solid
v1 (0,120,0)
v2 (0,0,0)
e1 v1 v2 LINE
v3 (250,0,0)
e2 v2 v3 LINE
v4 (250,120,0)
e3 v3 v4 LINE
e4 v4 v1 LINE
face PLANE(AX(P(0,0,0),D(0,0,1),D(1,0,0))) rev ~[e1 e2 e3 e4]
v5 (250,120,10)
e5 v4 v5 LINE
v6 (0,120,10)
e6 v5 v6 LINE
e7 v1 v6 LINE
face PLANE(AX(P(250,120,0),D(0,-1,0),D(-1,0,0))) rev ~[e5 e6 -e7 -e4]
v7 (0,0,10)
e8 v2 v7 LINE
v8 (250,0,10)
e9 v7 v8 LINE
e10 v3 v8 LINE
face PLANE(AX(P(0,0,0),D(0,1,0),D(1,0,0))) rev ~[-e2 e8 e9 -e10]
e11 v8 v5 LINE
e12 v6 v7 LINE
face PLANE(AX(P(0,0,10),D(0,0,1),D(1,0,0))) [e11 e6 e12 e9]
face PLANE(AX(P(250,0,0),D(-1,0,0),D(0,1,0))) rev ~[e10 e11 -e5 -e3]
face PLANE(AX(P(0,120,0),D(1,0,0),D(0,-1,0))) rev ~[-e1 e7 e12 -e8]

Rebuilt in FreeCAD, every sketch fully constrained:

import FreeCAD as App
import Part
import Sketcher
Q = App.Units.Quantity


def add_polygon(sketch, points):
    """Adds a closed chain of lines whose ends are joined by coincident constraints."""
    first, n = sketch.GeometryCount, len(points)
    for a, b in zip(points, points[1:] + points[:1]):
        sketch.addGeometry(Part.LineSegment(App.Vector(*a, 0), App.Vector(*b, 0)), False)
    for i in range(n):
        sketch.addConstraint(Sketcher.Constraint("Coincident", first + i, 2, first + (i + 1) % n, 1))

doc = App.newDocument("Part")
params = doc.addObject("Spreadsheet::Sheet", "Params")
for row, (alias, value) in enumerate([
    ("sketch1_width", "250 mm"),
    ("sketch1_height", "120 mm"),
    ("pad1_length", "10 mm"),
], start=1):
    params.set(f"A{row}", alias)
    params.set(f"B{row}", "=" + value)
    params.setAlias(f"B{row}", alias)

body = doc.addObject("PartDesign::Body", "Body")

# Sketch on XY plane
sketch1 = doc.addObject("Sketcher::SketchObject", "Sketch")
body.addObject(sketch1)
sketch1.AttachmentSupport = (doc.XY_Plane, [""])
sketch1.MapMode = "FlatFace"
add_polygon(sketch1, [(0, 120), (0, 0), (250, 0), (250, 120)])  # lines 0-3
sketch1.addConstraint(Sketcher.Constraint("Vertical", 0))
sketch1.addConstraint(Sketcher.Constraint("Horizontal", 1))
sketch1.addConstraint(Sketcher.Constraint("Vertical", 2))
sketch1.addConstraint(Sketcher.Constraint("Horizontal", 3))
sketch1.addConstraint(Sketcher.Constraint("Coincident", 0, 2, -1, 1))
sketch1.addConstraint(Sketcher.Constraint("DistanceX", 1, 1, 1, 2, Q("250 mm")))
sketch1.addConstraint(Sketcher.Constraint("DistanceY", 0, 2, 0, 1, Q("120 mm")))
sketch1.setExpression("Constraints[9]", "Params.sketch1_width")
sketch1.setExpression("Constraints[10]", "Params.sketch1_height")
pad1 = doc.addObject("PartDesign::Pad", "Pad")
body.addObject(pad1)
pad1.Profile = sketch1
pad1.setExpression("Length", "Params.pad1_length")

doc.recompute()
